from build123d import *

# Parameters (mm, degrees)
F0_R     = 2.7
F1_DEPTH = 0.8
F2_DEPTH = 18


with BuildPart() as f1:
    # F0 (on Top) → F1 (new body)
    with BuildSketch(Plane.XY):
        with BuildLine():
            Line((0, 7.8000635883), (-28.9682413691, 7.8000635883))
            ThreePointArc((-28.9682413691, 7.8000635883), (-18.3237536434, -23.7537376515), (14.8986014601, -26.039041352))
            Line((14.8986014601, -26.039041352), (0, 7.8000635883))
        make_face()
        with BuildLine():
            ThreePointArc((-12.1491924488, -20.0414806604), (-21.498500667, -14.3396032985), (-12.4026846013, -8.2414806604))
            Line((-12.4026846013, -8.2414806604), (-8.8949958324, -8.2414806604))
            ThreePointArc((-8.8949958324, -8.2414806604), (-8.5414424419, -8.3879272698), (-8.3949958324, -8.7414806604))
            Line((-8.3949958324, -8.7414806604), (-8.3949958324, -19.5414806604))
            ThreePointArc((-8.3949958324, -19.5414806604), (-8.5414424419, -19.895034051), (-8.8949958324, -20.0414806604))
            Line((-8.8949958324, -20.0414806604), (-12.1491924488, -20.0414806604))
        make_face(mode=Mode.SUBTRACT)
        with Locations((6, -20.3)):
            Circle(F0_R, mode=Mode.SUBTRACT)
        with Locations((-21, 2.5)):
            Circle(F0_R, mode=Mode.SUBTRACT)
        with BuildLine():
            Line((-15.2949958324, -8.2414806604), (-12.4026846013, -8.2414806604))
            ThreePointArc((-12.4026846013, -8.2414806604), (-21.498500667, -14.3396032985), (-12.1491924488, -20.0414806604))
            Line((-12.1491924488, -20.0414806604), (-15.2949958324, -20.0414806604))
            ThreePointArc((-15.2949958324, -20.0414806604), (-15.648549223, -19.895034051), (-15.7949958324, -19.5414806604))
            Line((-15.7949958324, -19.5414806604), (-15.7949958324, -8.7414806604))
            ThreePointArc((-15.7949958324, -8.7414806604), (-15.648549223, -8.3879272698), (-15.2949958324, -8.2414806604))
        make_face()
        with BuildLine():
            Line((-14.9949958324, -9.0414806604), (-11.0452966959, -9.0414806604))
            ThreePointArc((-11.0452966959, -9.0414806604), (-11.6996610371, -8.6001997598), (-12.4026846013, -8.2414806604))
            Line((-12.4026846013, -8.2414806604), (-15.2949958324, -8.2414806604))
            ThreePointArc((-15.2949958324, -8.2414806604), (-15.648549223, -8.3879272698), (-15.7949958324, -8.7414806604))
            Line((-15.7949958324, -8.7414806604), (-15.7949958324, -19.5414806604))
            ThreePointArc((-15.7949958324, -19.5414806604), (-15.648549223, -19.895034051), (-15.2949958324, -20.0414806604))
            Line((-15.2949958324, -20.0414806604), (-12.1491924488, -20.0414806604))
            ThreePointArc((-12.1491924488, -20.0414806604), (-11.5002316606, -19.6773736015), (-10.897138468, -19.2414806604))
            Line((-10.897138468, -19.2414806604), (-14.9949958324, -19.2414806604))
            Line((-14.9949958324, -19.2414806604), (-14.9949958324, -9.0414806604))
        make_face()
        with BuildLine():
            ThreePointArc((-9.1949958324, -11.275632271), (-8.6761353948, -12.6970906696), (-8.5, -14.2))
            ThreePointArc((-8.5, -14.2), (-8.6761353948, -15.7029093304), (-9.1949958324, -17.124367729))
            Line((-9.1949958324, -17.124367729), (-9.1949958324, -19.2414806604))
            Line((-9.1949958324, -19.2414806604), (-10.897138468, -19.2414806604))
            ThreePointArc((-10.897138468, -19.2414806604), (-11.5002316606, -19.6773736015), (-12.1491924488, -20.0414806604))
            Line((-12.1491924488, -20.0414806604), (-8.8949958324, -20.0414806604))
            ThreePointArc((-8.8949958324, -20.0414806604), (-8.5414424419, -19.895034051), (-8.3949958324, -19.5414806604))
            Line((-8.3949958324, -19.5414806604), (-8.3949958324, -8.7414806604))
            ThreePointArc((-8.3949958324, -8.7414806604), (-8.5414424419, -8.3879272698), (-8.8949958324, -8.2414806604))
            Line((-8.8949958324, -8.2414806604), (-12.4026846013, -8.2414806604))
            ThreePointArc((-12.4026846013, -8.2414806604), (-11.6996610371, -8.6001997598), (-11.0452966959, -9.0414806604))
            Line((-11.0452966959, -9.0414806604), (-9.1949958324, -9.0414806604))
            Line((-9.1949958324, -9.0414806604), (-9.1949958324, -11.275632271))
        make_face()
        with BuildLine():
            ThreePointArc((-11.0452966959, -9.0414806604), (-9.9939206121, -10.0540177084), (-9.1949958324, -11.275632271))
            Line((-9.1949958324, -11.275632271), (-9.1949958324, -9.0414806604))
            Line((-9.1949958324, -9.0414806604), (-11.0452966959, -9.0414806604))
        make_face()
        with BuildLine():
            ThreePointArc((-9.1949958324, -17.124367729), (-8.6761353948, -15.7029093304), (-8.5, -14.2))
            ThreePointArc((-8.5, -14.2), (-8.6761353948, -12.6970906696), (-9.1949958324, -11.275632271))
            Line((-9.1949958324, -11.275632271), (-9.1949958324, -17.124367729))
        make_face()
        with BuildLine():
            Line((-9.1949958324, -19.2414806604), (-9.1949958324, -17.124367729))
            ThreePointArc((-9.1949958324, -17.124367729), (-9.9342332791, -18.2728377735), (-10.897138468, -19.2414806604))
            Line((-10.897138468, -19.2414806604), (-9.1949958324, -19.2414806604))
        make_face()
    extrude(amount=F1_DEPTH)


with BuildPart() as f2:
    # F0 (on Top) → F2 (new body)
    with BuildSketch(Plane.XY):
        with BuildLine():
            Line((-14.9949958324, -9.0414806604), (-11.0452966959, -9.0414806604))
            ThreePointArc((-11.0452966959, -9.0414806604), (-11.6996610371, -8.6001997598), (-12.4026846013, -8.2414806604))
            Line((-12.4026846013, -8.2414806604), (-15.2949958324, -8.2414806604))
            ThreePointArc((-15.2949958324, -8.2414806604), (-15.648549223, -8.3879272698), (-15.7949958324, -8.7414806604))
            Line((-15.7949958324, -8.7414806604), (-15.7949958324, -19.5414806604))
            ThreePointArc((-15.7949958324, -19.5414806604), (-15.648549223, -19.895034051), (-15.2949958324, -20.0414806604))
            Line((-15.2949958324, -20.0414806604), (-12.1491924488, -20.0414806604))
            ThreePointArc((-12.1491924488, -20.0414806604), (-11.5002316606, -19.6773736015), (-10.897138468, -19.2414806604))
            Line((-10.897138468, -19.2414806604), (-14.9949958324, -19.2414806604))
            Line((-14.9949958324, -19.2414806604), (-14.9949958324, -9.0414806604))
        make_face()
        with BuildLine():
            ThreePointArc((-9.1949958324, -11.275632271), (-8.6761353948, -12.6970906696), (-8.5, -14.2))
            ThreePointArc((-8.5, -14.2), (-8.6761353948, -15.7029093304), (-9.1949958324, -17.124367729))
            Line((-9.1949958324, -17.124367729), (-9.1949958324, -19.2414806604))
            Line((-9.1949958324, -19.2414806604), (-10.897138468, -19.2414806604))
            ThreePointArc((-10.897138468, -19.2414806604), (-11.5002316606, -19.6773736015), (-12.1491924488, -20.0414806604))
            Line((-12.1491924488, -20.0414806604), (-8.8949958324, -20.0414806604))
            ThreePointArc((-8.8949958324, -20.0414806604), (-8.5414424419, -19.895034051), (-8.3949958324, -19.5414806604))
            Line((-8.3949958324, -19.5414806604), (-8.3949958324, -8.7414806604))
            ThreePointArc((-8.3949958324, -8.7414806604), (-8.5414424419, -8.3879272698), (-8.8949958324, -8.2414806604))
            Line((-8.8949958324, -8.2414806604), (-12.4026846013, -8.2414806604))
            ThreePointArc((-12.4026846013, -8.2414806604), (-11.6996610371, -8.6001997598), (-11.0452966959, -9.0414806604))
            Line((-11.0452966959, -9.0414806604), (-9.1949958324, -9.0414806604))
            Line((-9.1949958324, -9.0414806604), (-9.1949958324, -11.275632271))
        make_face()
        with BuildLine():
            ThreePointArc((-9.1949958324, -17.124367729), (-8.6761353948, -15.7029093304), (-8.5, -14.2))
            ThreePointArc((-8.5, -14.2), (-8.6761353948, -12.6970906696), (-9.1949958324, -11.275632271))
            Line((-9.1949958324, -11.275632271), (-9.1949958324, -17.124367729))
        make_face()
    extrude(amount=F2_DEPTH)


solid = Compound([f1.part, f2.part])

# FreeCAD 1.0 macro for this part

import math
import FreeCAD as App
import Part
import Sketcher

V = App.Vector

doc = App.newDocument("Part")
params = doc.addObject("Spreadsheet::Sheet", "Params")
for row, (alias, value) in enumerate([
    ("sketch1_radius", "30 mm"),
    ("sketch1_diameter", "5.4 mm"),
    ("sketch1_radius2", "6.5 mm"),
    ("sketch1_height", "10.2 mm"),
    ("pad1_length", "0.8 mm"),
    ("sketch2_radius", "0.5 mm"),
    ("sketch2_width", "6.4 mm"),
    ("sketch2_width2", "5.8 mm"),
    ("sketch2_height", "10.8 mm"),
    ("sketch2_height2", "10.2 mm"),
    ("pad2_length", "18 mm"),
], start=1):
    params.set(f"A{row}", alias)
    params.set(f"B{row}", "=" + value)
    params.setAlias(f"B{row}", alias)

body = doc.addObject("PartDesign::Body", "Body")

sketch1 = body.newObject("Sketcher::SketchObject", "Sketch")
sketch1.AttachmentSupport = (doc.getObject("XY_Plane"), [""])
sketch1.MapMode = "FlatFace"
sketch1.addGeometry([
    Part.LineSegment(V(0, 7.8, 0), V(-29, 7.8, 0)),
    Part.ArcOfCircle(Part.Circle(V(0, 0, 0), V(0, 0, 1), 30), math.radians(165), math.radians(300)),
    Part.LineSegment(V(14.9, -26, 0), V(0, 7.8, 0)),
    Part.LineSegment(V(-15, -19.2, 0), V(-15, -9, 0)),
    Part.LineSegment(V(-15, -9, 0), V(-11, -9, 0)),
    Part.ArcOfCircle(Part.Circle(V(-15, -14.2, 0), V(0, 0, 1), 6.5), math.radians(27), math.radians(53)),
    Part.LineSegment(V(-9.2, -11.3, 0), V(-9.2, -17.1, 0)),
    Part.ArcOfCircle(Part.Circle(V(-15, -14.2, 0), V(0, 0, 1), 6.5), math.radians(-51), math.radians(-27)),
    Part.LineSegment(V(-10.9, -19.2, 0), V(-15, -19.2, 0)),
    Part.Circle(V(6, -20.3, 0), V(0, 0, 1), 2.7),
    Part.Circle(V(-21, 2.5, 0), V(0, 0, 1), 2.7),
], False)
sketch1.addConstraint([
    Sketcher.Constraint("Coincident", 0, 2, 1, 1),
    Sketcher.Constraint("Coincident", 1, 2, 2, 1),
    Sketcher.Constraint("Coincident", 2, 2, 0, 1),
    Sketcher.Constraint("Coincident", 3, 2, 4, 1),
    Sketcher.Constraint("Coincident", 4, 2, 5, 2),
    Sketcher.Constraint("Coincident", 5, 1, 6, 1),
    Sketcher.Constraint("Coincident", 6, 2, 7, 2),
    Sketcher.Constraint("Coincident", 7, 1, 8, 1),
    Sketcher.Constraint("Coincident", 8, 2, 3, 1),
    Sketcher.Constraint("Horizontal", 0),
    Sketcher.Constraint("Vertical", 3),
    Sketcher.Constraint("Horizontal", 4),
    Sketcher.Constraint("Vertical", 6),
    Sketcher.Constraint("Horizontal", 8),
    Sketcher.Constraint("Coincident", 1, 3, -1, 1),
    Sketcher.Constraint("Coincident", 7, 3, 5, 3),
    Sketcher.Constraint("Equal", 5, 7),
    Sketcher.Constraint("Equal", 9, 10),
    Sketcher.Constraint("PointOnObject", 2, 2, -2),
    Sketcher.Constraint("Radius", 1, 30.0),
    Sketcher.Constraint("Diameter", 9, 5.4),
    Sketcher.Constraint("Radius", 5, 6.5),
    Sketcher.Constraint("DistanceY", 3, 1, 3, 2, 10.2),
    Sketcher.Constraint("DistanceX", 5, 3, -1, 1, 15.0),
    Sketcher.Constraint("DistanceX", -1, 1, 9, 3, 6.0),
    Sketcher.Constraint("DistanceX", 10, 3, -1, 1, 21.0),
    Sketcher.Constraint("DistanceY", 5, 3, -1, 1, 14.2),
    Sketcher.Constraint("DistanceY", 9, 3, -1, 1, 20.3),
    Sketcher.Constraint("DistanceY", -1, 1, 10, 3, 2.5),
    Sketcher.Constraint("DistanceX", 3, 2, 5, 1, 5.8),
    Sketcher.Constraint("DistanceX", 4, 1, 4, 2, 3.949699),
    Sketcher.Constraint("DistanceX", 0, 2, 0, 1, 28.968241),
    Sketcher.Constraint("DistanceX", -1, 1, 1, 2, 14.898601),
    Sketcher.Constraint("DistanceX", 8, 2, 8, 1, 4.097857),
])
sketch1.setExpression("Constraints[19]", "Params.sketch1_radius")
sketch1.setExpression("Constraints[20]", "Params.sketch1_diameter")
sketch1.setExpression("Constraints[21]", "Params.sketch1_radius2")
sketch1.setExpression("Constraints[22]", "Params.sketch1_height")
pad1 = body.newObject("PartDesign::Pad", "Pad")
pad1.Profile = sketch1
pad1.setExpression("Length", "Params.pad1_length")
body2 = doc.addObject("PartDesign::Body", "Body001")

sketch2 = body2.newObject("Sketcher::SketchObject", "Sketch001")
sketch2.AttachmentSupport = (doc.getObject("XY_Plane001"), [""])
sketch2.MapMode = "FlatFace"
sketch2.addGeometry([
    Part.ArcOfCircle(Part.Circle(V(-15.3, -8.7, 0), V(0, 0, 1), 0.5), math.radians(90), math.radians(180)),
    Part.LineSegment(V(-15.8, -8.7, 0), V(-15.8, -19.5, 0)),
    Part.ArcOfCircle(Part.Circle(V(-15.3, -19.5, 0), V(0, 0, 1), 0.5), math.radians(180), math.radians(270)),
    Part.LineSegment(V(-15.3, -20, 0), V(-8.9, -20, 0)),
    Part.ArcOfCircle(Part.Circle(V(-8.9, -19.5, 0), V(0, 0, 1), 0.5), math.radians(-90), math.radians(0)),
    Part.LineSegment(V(-8.4, -19.5, 0), V(-8.4, -8.7, 0)),
    Part.ArcOfCircle(Part.Circle(V(-8.9, -8.7, 0), V(0, 0, 1), 0.5), math.radians(0), math.radians(90)),
    Part.LineSegment(V(-8.9, -8.2, 0), V(-15.3, -8.2, 0)),
    Part.LineSegment(V(-15, -9, 0), V(-9.2, -9, 0)),
    Part.LineSegment(V(-9.2, -9, 0), V(-9.2, -19.2, 0)),
    Part.LineSegment(V(-9.2, -19.2, 0), V(-15, -19.2, 0)),
    Part.LineSegment(V(-15, -19.2, 0), V(-15, -9, 0)),
], False)
sketch2.addConstraint([
    Sketcher.Constraint("Tangent", 0, 2, 1, 1),
    Sketcher.Constraint("Tangent", 1, 2, 2, 1),
    Sketcher.Constraint("Tangent", 2, 2, 3, 1),
    Sketcher.Constraint("Tangent", 3, 2, 4, 1),
    Sketcher.Constraint("Tangent", 4, 2, 5, 1),
    Sketcher.Constraint("Tangent", 5, 2, 6, 1),
    Sketcher.Constraint("Tangent", 6, 2, 7, 1),
    Sketcher.Constraint("Tangent", 7, 2, 0, 1),
    Sketcher.Constraint("Coincident", 8, 2, 9, 1),
    Sketcher.Constraint("Coincident", 9, 2, 10, 1),
    Sketcher.Constraint("Coincident", 10, 2, 11, 1),
    Sketcher.Constraint("Coincident", 11, 2, 8, 1),
    Sketcher.Constraint("Vertical", 1),
    Sketcher.Constraint("Horizontal", 3),
    Sketcher.Constraint("Vertical", 5),
    Sketcher.Constraint("Horizontal", 7),
    Sketcher.Constraint("Horizontal", 8),
    Sketcher.Constraint("Vertical", 9),
    Sketcher.Constraint("Horizontal", 10),
    Sketcher.Constraint("Vertical", 11),
    Sketcher.Constraint("Equal", 0, 2),
    Sketcher.Constraint("Equal", 2, 4),
    Sketcher.Constraint("Equal", 4, 6),
    Sketcher.Constraint("Radius", 0, 0.5),
    Sketcher.Constraint("DistanceX", 3, 1, 3, 2, 6.4),
    Sketcher.Constraint("DistanceX", 8, 1, 8, 2, 5.8),
    Sketcher.Constraint("DistanceY", 1, 2, 1, 1, 10.8),
    Sketcher.Constraint("DistanceY", 9, 2, 9, 1, 10.2),
    Sketcher.Constraint("DistanceX", 8, 2, 6, 3, 0.3),
    Sketcher.Constraint("DistanceY", 8, 2, 6, 3, 0.3),
    Sketcher.Constraint("DistanceY", 0, 3, -1, 1, 8.741481),
    Sketcher.Constraint("DistanceX", 0, 3, -1, 1, 15.294996),
])
sketch2.setExpression("Constraints[23]", "Params.sketch2_radius")
sketch2.setExpression("Constraints[24]", "Params.sketch2_width")
sketch2.setExpression("Constraints[25]", "Params.sketch2_width2")
sketch2.setExpression("Constraints[26]", "Params.sketch2_height")
sketch2.setExpression("Constraints[27]", "Params.sketch2_height2")
pad2 = body2.newObject("PartDesign::Pad", "Pad001")
pad2.Profile = sketch2
pad2.setExpression("Length", "Params.pad2_length")

doc.recompute()
